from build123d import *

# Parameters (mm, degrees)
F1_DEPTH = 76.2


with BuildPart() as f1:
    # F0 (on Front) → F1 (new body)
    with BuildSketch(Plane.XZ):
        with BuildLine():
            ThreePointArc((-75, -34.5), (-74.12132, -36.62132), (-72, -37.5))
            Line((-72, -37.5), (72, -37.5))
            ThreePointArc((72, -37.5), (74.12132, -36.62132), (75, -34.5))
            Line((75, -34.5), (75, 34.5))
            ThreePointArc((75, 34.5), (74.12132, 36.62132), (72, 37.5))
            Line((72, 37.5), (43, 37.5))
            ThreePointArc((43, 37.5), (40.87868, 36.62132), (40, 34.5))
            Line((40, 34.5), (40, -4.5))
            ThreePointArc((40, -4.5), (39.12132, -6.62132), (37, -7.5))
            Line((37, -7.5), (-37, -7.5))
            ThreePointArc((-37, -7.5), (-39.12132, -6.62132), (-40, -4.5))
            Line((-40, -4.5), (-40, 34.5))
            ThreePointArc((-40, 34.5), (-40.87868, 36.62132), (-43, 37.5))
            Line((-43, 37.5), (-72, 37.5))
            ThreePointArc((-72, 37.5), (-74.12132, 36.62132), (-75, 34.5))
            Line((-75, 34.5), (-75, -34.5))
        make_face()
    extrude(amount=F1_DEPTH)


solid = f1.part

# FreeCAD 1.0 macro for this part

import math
import FreeCAD as App
import Part
import Sketcher
Q = App.Units.Quantity

doc = App.newDocument("Part")
params = doc.addObject("Spreadsheet::Sheet", "Params")
for row, (alias, value) in enumerate([
    ("sketch1_radius", "3.000001 mm"),
    ("sketch1_width", "144 mm"),
    ("sketch1_width2", "29 mm"),
    ("sketch1_height", "69 mm"),
    ("sketch1_height2", "39 mm"),
    ("pad1_length", "76.2 mm"),
], start=1):
    params.set(f"A{row}", alias)
    params.set(f"B{row}", "=" + value)
    params.setAlias(f"B{row}", alias)

body = doc.addObject("PartDesign::Body", "Body")

sketch1 = body.newObject("Sketcher::SketchObject", "Sketch")
sketch1.AttachmentSupport = (doc.getObject("XZ_Plane"), [""])
sketch1.MapMode = "FlatFace"
sketch1.addGeometry(Part.ArcOfCircle(Part.Circle(App.Vector(-72, -34.5, 0), App.Vector(0, 0, 1), 3), math.radians(-180), math.radians(-90)), False)
sketch1.addGeometry(Part.LineSegment(App.Vector(-72, -37.5, 0), App.Vector(72, -37.5, 0)), False)
sketch1.addGeometry(Part.ArcOfCircle(Part.Circle(App.Vector(72, -34.5, 0), App.Vector(0, 0, 1), 3), math.radians(-90), math.radians(0)), False)
sketch1.addGeometry(Part.LineSegment(App.Vector(75, -34.5, 0), App.Vector(75, 34.5, 0)), False)
sketch1.addGeometry(Part.ArcOfCircle(Part.Circle(App.Vector(72, 34.5, 0), App.Vector(0, 0, 1), 3), math.radians(0), math.radians(90)), False)
sketch1.addGeometry(Part.LineSegment(App.Vector(72, 37.5, 0), App.Vector(43, 37.5, 0)), False)
sketch1.addGeometry(Part.ArcOfCircle(Part.Circle(App.Vector(43, 34.5, 0), App.Vector(0, 0, 1), 3), math.radians(90), math.radians(180)), False)
sketch1.addGeometry(Part.LineSegment(App.Vector(40, 34.5, 0), App.Vector(40, -4.5, 0)), False)
sketch1.addGeometry(Part.ArcOfCircle(Part.Circle(App.Vector(37, -4.5, 0), App.Vector(0, 0, 1), 3), math.radians(-90), math.radians(0)), False)
sketch1.addGeometry(Part.LineSegment(App.Vector(37, -7.5, 0), App.Vector(-37, -7.5, 0)), False)
sketch1.addGeometry(Part.ArcOfCircle(Part.Circle(App.Vector(-37, -4.5, 0), App.Vector(0, 0, 1), 3), math.radians(-180), math.radians(-90)), False)
sketch1.addGeometry(Part.LineSegment(App.Vector(-40, -4.5, 0), App.Vector(-40, 34.5, 0)), False)
sketch1.addGeometry(Part.ArcOfCircle(Part.Circle(App.Vector(-43, 34.5, 0), App.Vector(0, 0, 1), 3), math.radians(0), math.radians(90)), False)
sketch1.addGeometry(Part.LineSegment(App.Vector(-43, 37.5, 0), App.Vector(-72, 37.5, 0)), False)
sketch1.addGeometry(Part.ArcOfCircle(Part.Circle(App.Vector(-72, 34.5, 0), App.Vector(0, 0, 1), 3), math.radians(90), math.radians(180)), False)
sketch1.addGeometry(Part.LineSegment(App.Vector(-75, 34.5, 0), App.Vector(-75, -34.5, 0)), False)
sketch1.addConstraint(Sketcher.Constraint("Tangent", 0, 2, 1, 1))
sketch1.addConstraint(Sketcher.Constraint("Tangent", 1, 2, 2, 1))
sketch1.addConstraint(Sketcher.Constraint("Tangent", 2, 2, 3, 1))
sketch1.addConstraint(Sketcher.Constraint("Tangent", 3, 2, 4, 1))
sketch1.addConstraint(Sketcher.Constraint("Tangent", 4, 2, 5, 1))
sketch1.addConstraint(Sketcher.Constraint("Tangent", 5, 2, 6, 1))
sketch1.addConstraint(Sketcher.Constraint("Tangent", 6, 2, 7, 1))
sketch1.addConstraint(Sketcher.Constraint("Tangent", 7, 2, 8, 2))
sketch1.addConstraint(Sketcher.Constraint("Tangent", 8, 1, 9, 1))
sketch1.addConstraint(Sketcher.Constraint("Tangent", 9, 2, 10, 2))
sketch1.addConstraint(Sketcher.Constraint("Tangent", 10, 1, 11, 1))
sketch1.addConstraint(Sketcher.Constraint("Tangent", 11, 2, 12, 1))
sketch1.addConstraint(Sketcher.Constraint("Tangent", 12, 2, 13, 1))
sketch1.addConstraint(Sketcher.Constraint("Tangent", 13, 2, 14, 1))
sketch1.addConstraint(Sketcher.Constraint("Tangent", 14, 2, 15, 1))
sketch1.addConstraint(Sketcher.Constraint("Tangent", 15, 2, 0, 1))
sketch1.addConstraint(Sketcher.Constraint("Horizontal", 1))
sketch1.addConstraint(Sketcher.Constraint("Vertical", 3))
sketch1.addConstraint(Sketcher.Constraint("Horizontal", 5))
sketch1.addConstraint(Sketcher.Constraint("Vertical", 7))
sketch1.addConstraint(Sketcher.Constraint("Horizontal", 9))
sketch1.addConstraint(Sketcher.Constraint("Vertical", 11))
sketch1.addConstraint(Sketcher.Constraint("Horizontal", 13))
sketch1.addConstraint(Sketcher.Constraint("Vertical", 15))
sketch1.addConstraint(Sketcher.Constraint("Equal", 0, 2))
sketch1.addConstraint(Sketcher.Constraint("Equal", 2, 4))
sketch1.addConstraint(Sketcher.Constraint("Equal", 4, 6))
sketch1.addConstraint(Sketcher.Constraint("Equal", 6, 8))
sketch1.addConstraint(Sketcher.Constraint("Equal", 8, 10))
sketch1.addConstraint(Sketcher.Constraint("Equal", 10, 12))
sketch1.addConstraint(Sketcher.Constraint("Equal", 12, 14))
sketch1.addConstraint(Sketcher.Constraint("Symmetric", 0, 3, 4, 3, -1, 1))
sketch1.addConstraint(Sketcher.Constraint("Symmetric", 6, 3, 12, 3, -2))
sketch1.addConstraint(Sketcher.Constraint("Radius", 0, Q("3.000001 mm")))
sketch1.addConstraint(Sketcher.Constraint("DistanceX", 1, 1, 1, 2, Q("144 mm")))
sketch1.addConstraint(Sketcher.Constraint("DistanceX", 5, 2, 5, 1, Q("29 mm")))
sketch1.addConstraint(Sketcher.Constraint("DistanceY", 3, 1, 3, 2, Q("69 mm")))
sketch1.addConstraint(Sketcher.Constraint("DistanceY", 7, 2, 7, 1, Q("39 mm")))
sketch1.setExpression("Constraints[33]", "Params.sketch1_radius")
sketch1.setExpression("Constraints[34]", "Params.sketch1_width")
sketch1.setExpression("Constraints[35]", "Params.sketch1_width2")
sketch1.setExpression("Constraints[36]", "Params.sketch1_height")
sketch1.setExpression("Constraints[37]", "Params.sketch1_height2")
pad1 = body.newObject("PartDesign::Pad", "Pad")
pad1.Profile = sketch1
pad1.setExpression("Length", "Params.pad1_length")

doc.recompute()
